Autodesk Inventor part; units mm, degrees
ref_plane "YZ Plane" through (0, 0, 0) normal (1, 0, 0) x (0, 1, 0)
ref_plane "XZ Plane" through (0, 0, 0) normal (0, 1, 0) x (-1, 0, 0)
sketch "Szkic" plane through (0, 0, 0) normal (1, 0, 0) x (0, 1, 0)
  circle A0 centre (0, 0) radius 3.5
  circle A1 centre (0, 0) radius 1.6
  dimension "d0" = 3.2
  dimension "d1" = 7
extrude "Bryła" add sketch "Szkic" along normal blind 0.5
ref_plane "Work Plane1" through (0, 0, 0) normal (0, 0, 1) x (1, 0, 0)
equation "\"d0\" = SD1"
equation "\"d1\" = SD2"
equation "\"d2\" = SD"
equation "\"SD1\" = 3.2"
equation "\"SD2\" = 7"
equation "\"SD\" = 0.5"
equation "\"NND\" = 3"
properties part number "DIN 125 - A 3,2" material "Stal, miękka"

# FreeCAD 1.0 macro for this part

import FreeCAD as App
import Part
import Sketcher

V = App.Vector
Q = App.Units.Quantity

doc = App.newDocument("Part")
body = doc.addObject("PartDesign::Body", "Body")

# Sketch on YZ plane
sketch1 = doc.addObject("Sketcher::SketchObject", "Sketch")
body.addObject(sketch1)
sketch1.AttachmentSupport = (doc.YZ_Plane, [""])
sketch1.MapMode = "FlatFace"
sketch1.addGeometry([
    Part.Circle(V(0, 0, 0), V(0, 0, 1), 3.5),
    Part.Circle(V(0, 0, 0), V(0, 0, 1), 1.6),
], False)
sketch1.addConstraint([
    Sketcher.Constraint("Coincident", 0, 3, -1, 1),
    Sketcher.Constraint("Coincident", 1, 3, -1, 1),
    Sketcher.Constraint("Diameter", 0, Q("7 mm")),
    Sketcher.Constraint("Diameter", 1, Q("3.2 mm")),
])
pad1 = doc.addObject("PartDesign::Pad", "Pad")
body.addObject(pad1)
pad1.Profile = sketch1
pad1.Length = 0.5

doc.recompute()
